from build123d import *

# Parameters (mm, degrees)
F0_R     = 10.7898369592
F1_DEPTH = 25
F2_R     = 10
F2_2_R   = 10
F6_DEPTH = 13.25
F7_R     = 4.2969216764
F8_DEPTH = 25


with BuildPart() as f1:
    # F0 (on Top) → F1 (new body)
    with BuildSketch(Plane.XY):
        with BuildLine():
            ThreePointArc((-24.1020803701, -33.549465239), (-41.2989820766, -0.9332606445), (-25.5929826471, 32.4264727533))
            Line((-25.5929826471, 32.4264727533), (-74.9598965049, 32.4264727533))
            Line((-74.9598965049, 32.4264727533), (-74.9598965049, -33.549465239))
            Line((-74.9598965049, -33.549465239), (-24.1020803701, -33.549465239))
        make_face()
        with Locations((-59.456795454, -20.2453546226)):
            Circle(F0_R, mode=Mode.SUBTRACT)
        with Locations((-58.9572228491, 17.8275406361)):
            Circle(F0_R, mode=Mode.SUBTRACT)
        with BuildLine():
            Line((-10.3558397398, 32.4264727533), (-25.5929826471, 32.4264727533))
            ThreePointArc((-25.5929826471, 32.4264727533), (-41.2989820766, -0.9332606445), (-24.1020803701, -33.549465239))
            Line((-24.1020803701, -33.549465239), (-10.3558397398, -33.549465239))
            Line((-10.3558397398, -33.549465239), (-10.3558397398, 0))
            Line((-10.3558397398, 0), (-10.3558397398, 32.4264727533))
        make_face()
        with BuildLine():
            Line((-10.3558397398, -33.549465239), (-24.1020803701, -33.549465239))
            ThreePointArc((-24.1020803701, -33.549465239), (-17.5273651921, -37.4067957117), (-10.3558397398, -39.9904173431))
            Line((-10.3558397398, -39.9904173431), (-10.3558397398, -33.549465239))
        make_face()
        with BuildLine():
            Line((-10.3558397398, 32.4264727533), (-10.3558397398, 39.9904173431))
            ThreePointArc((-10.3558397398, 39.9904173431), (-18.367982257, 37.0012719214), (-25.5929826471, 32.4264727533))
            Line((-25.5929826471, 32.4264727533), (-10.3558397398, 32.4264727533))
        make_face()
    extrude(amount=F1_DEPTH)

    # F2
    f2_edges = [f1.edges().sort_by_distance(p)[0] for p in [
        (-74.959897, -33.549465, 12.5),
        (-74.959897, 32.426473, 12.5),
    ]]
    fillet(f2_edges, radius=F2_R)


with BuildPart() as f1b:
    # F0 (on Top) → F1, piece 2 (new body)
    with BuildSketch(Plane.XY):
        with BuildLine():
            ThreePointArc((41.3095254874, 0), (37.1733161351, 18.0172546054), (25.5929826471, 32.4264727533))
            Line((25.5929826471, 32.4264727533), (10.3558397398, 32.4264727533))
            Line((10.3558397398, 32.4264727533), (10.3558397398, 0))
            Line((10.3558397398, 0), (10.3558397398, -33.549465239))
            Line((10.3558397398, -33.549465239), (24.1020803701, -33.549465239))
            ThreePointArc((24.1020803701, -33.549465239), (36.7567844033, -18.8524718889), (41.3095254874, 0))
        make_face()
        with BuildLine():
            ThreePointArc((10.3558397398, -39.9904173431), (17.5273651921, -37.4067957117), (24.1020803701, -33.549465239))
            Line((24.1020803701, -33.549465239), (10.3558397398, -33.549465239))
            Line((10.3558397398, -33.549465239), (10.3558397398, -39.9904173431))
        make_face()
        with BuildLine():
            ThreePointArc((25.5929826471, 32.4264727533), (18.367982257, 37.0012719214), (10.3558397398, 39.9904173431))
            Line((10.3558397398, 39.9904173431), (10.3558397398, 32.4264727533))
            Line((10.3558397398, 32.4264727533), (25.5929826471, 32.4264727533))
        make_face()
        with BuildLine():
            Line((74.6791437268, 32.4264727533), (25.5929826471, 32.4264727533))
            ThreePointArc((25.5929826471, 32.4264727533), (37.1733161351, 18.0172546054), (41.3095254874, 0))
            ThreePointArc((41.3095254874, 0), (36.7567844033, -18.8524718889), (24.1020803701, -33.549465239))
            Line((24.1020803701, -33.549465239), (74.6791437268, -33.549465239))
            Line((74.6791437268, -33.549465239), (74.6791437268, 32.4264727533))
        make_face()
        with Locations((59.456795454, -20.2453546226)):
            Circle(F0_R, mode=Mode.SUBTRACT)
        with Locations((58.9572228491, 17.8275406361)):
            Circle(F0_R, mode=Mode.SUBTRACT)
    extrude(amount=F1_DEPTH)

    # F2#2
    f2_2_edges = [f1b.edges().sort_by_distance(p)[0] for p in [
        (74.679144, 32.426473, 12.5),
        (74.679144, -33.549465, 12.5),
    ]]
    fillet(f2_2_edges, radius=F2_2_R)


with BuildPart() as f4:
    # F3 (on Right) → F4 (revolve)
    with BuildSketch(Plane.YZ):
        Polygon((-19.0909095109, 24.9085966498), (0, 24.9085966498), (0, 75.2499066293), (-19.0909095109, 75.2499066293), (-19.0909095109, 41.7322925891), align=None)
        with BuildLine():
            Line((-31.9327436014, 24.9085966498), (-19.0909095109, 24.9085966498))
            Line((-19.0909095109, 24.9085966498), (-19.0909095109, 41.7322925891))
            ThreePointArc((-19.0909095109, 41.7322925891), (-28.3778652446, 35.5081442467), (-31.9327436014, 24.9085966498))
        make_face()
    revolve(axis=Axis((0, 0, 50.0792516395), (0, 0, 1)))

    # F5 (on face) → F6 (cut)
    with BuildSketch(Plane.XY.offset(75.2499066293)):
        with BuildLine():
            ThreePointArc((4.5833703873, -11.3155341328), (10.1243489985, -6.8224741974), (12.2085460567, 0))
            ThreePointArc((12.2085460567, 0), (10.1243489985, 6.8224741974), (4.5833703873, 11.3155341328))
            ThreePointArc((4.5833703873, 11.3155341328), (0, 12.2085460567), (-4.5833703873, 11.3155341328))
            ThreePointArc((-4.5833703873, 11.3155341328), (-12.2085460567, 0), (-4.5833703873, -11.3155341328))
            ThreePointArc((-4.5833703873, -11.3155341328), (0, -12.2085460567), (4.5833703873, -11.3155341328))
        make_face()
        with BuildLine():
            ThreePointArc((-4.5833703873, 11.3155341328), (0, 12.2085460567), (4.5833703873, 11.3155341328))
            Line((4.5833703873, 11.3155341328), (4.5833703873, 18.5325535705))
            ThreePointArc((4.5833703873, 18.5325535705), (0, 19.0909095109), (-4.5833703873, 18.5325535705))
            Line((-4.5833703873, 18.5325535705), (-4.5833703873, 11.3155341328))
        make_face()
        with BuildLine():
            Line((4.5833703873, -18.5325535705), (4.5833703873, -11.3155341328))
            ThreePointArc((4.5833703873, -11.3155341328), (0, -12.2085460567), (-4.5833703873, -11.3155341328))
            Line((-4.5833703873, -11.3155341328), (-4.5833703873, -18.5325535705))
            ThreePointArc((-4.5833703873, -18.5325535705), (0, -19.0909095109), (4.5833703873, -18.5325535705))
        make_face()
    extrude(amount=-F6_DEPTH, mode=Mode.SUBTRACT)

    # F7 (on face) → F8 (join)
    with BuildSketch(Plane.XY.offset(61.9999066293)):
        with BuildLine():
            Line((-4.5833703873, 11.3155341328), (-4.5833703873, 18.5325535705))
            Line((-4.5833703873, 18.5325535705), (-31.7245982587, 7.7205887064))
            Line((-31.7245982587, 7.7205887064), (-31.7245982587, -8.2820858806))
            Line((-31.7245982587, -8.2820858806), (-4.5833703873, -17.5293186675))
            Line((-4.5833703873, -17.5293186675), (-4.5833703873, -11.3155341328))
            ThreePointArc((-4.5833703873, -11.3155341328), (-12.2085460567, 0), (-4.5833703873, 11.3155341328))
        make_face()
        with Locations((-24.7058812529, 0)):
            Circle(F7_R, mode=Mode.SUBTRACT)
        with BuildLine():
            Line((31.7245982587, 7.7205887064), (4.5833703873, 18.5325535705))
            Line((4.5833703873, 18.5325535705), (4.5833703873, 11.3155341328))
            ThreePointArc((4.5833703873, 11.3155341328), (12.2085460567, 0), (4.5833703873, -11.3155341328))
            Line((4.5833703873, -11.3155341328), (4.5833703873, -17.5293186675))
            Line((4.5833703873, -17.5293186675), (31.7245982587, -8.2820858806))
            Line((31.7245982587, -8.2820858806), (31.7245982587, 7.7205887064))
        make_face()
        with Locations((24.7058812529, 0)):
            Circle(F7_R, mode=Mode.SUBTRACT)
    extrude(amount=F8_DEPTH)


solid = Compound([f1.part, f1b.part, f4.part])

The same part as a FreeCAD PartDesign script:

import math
import FreeCAD as App
import Part
import Sketcher

V = App.Vector
Q = App.Units.Quantity


def edges_at(feature, points):
    """Names of the edges that pass closest to the given points."""
    edges = feature.Shape.Edges
    near = lambda p: min(range(len(edges)), key=lambda i: edges[i].distToShape(Part.Vertex(*p))[0])
    return sorted({f"Edge{near(p) + 1}" for p in points})

doc = App.newDocument("Part")
body = doc.addObject("PartDesign::Body", "Body")

sketch1 = body.newObject("Sketcher::SketchObject", "Sketch")
sketch1.AttachmentSupport = (doc.getObject("XY_Plane"), [""])
sketch1.MapMode = "FlatFace"
sketch1.addGeometry(Part.LineSegment(V(-75, -34, 0), V(-24, -34, 0)), False)
sketch1.addGeometry(Part.ArcOfCircle(Part.Circle(V(0, 0, 0), V(0, 0, 1), 41), math.radians(-126), math.radians(-105)), False)
sketch1.addGeometry(Part.LineSegment(V(-10, -40, 0), V(-10, 40, 0)), False)
sketch1.addGeometry(Part.ArcOfCircle(Part.Circle(V(0, 0, 0), V(0, 0, 1), 41), math.radians(105), math.radians(128)), False)
sketch1.addGeometry(Part.LineSegment(V(-26, 32, 0), V(-75, 32, 0)), False)
sketch1.addGeometry(Part.LineSegment(V(-75, 32, 0), V(-75, -34, 0)), False)
sketch1.addGeometry(Part.Circle(V(-59, -20, 0), V(0, 0, 1), 11), False)
sketch1.addGeometry(Part.Circle(V(-59, 18, 0), V(0, 0, 1), 11), False)
sketch1.addConstraint(Sketcher.Constraint("Coincident", 0, 2, 1, 1))
sketch1.addConstraint(Sketcher.Constraint("Coincident", 1, 2, 2, 1))
sketch1.addConstraint(Sketcher.Constraint("Coincident", 2, 2, 3, 1))
sketch1.addConstraint(Sketcher.Constraint("Coincident", 3, 2, 4, 1))
sketch1.addConstraint(Sketcher.Constraint("Coincident", 4, 2, 5, 1))
sketch1.addConstraint(Sketcher.Constraint("Coincident", 5, 2, 0, 1))
sketch1.addConstraint(Sketcher.Constraint("Horizontal", 0))
sketch1.addConstraint(Sketcher.Constraint("Vertical", 2))
sketch1.addConstraint(Sketcher.Constraint("Horizontal", 4))
sketch1.addConstraint(Sketcher.Constraint("Vertical", 5))
sketch1.addConstraint(Sketcher.Constraint("Coincident", 1, 3, -1, 1))
sketch1.addConstraint(Sketcher.Constraint("Coincident", 3, 3, -1, 1))
sketch1.addConstraint(Sketcher.Constraint("Equal", 1, 3))
sketch1.addConstraint(Sketcher.Constraint("Equal", 6, 7))
sketch1.addConstraint(Sketcher.Constraint("Diameter", 6, Q("21.579674 mm")))
sketch1.addConstraint(Sketcher.Constraint("Radius", 1, Q("41.309525 mm")))
sketch1.addConstraint(Sketcher.Constraint("DistanceX", 4, 2, 6, 3, Q("15.503101 mm")))
sketch1.addConstraint(Sketcher.Constraint("DistanceX", 0, 1, 0, 2, Q("50.857816 mm")))
sketch1.addConstraint(Sketcher.Constraint("DistanceX", 4, 2, 4, 1, Q("49.366914 mm")))
sketch1.addConstraint(Sketcher.Constraint("DistanceY", 2, 1, 2, 2, Q("79.980835 mm")))
sketch1.addConstraint(Sketcher.Constraint("DistanceY", 5, 2, 5, 1, Q("65.975938 mm")))
sketch1.addConstraint(Sketcher.Constraint("DistanceY", -1, 1, 7, 3, Q("17.827541 mm")))
sketch1.addConstraint(Sketcher.Constraint("DistanceY", 0, 2, 6, 3, Q("13.304111 mm")))
sketch1.addConstraint(Sketcher.Constraint("DistanceX", 7, 3, 3, 2, Q("33.36424 mm")))
pad1 = body.newObject("PartDesign::Pad", "Pad")
pad1.Profile = sketch1
pad1.Length = 25
doc.recompute()

fillet = body.newObject("PartDesign::Fillet", "Fillet")
fillet.Base = (pad1, edges_at(pad1, [(-74.96, -33.549, 12.5), (-74.96, 32.426, 12.5)]))
fillet.Radius = 10
body2 = doc.addObject("PartDesign::Body", "Body001")

sketch2 = body2.newObject("Sketcher::SketchObject", "Sketch001")
sketch2.AttachmentSupport = (doc.getObject("XY_Plane001"), [""])
sketch2.MapMode = "FlatFace"
sketch2.addGeometry(Part.ArcOfCircle(Part.Circle(V(0, 0, 0), V(0, 0, 1), 41), math.radians(52), math.radians(75)), False)
sketch2.addGeometry(Part.LineSegment(V(10, 40, 0), V(10, -40, 0)), False)
sketch2.addGeometry(Part.ArcOfCircle(Part.Circle(V(0, 0, 0), V(0, 0, 1), 41), math.radians(-75), math.radians(-54)), False)
sketch2.addGeometry(Part.LineSegment(V(24, -34, 0), V(75, -34, 0)), False)
sketch2.addGeometry(Part.LineSegment(V(75, -34, 0), V(75, 32, 0)), False)
sketch2.addGeometry(Part.LineSegment(V(75, 32, 0), V(26, 32, 0)), False)
sketch2.addGeometry(Part.Circle(V(59, -20, 0), V(0, 0, 1), 11), False)
sketch2.addGeometry(Part.Circle(V(59, 18, 0), V(0, 0, 1), 11), False)
sketch2.addConstraint(Sketcher.Constraint("Coincident", 0, 2, 1, 1))
sketch2.addConstraint(Sketcher.Constraint("Coincident", 1, 2, 2, 1))
sketch2.addConstraint(Sketcher.Constraint("Coincident", 2, 2, 3, 1))
sketch2.addConstraint(Sketcher.Constraint("Coincident", 3, 2, 4, 1))
sketch2.addConstraint(Sketcher.Constraint("Coincident", 4, 2, 5, 1))
sketch2.addConstraint(Sketcher.Constraint("Coincident", 5, 2, 0, 1))
sketch2.addConstraint(Sketcher.Constraint("Vertical", 1))
sketch2.addConstraint(Sketcher.Constraint("Horizontal", 3))
sketch2.addConstraint(Sketcher.Constraint("Vertical", 4))
sketch2.addConstraint(Sketcher.Constraint("Horizontal", 5))
sketch2.addConstraint(Sketcher.Constraint("Coincident", 0, 3, -1, 1))
sketch2.addConstraint(Sketcher.Constraint("Coincident", 2, 3, -1, 1))
sketch2.addConstraint(Sketcher.Constraint("Equal", 0, 2))
sketch2.addConstraint(Sketcher.Constraint("Equal", 6, 7))
sketch2.addConstraint(Sketcher.Constraint("Diameter", 6, Q("21.579674 mm")))
sketch2.addConstraint(Sketcher.Constraint("Radius", 0, Q("41.309525 mm")))
sketch2.addConstraint(Sketcher.Constraint("DistanceX", 5, 2, 5, 1, Q("49.086161 mm")))
sketch2.addConstraint(Sketcher.Constraint("DistanceX", 3, 1, 3, 2, Q("50.577063 mm")))
sketch2.addConstraint(Sketcher.Constraint("DistanceY", 1, 2, 1, 1, Q("79.980835 mm")))
sketch2.addConstraint(Sketcher.Constraint("DistanceY", 4, 1, 4, 2, Q("65.975938 mm")))
sketch2.addConstraint(Sketcher.Constraint("DistanceY", -1, 1, 7, 3, Q("17.827541 mm")))
sketch2.addConstraint(Sketcher.Constraint("DistanceY", 6, 3, 0, 2, Q("60.235772 mm")))
sketch2.addConstraint(Sketcher.Constraint("DistanceX", 6, 3, 3, 2, Q("15.222348 mm")))
sketch2.addConstraint(Sketcher.Constraint("DistanceX", 7, 3, 3, 2, Q("15.721921 mm")))
pad2 = body2.newObject("PartDesign::Pad", "Pad001")
pad2.Profile = sketch2
pad2.Length = 25
doc.recompute()

fillet2 = body2.newObject("PartDesign::Fillet", "Fillet001")
fillet2.Base = (pad2, edges_at(pad2, [(74.679, 32.426, 12.5), (74.679, -33.549, 12.5)]))
fillet2.Radius = 10
body3 = doc.addObject("PartDesign::Body", "Body002")

sketch3 = body3.newObject("Sketcher::SketchObject", "Sketch002")
sketch3.AttachmentSupport = (doc.getObject("YZ_Plane002"), [""])
sketch3.MapMode = "FlatFace"
sketch3.addGeometry(Part.LineSegment(V(0, 25, 0), V(0, 75, 0)), False)
sketch3.addGeometry(Part.LineSegment(V(0, 75, 0), V(-19, 75, 0)), False)
sketch3.addGeometry(Part.LineSegment(V(-19, 75, 0), V(-19, 42, 0)), False)
sketch3.addGeometry(Part.ArcOfCircle(Part.Circle(V(-15, 25, 0), V(0, 0, 1), 17), math.radians(105), math.radians(180)), False)
sketch3.addGeometry(Part.LineSegment(V(-32, 25, 0), V(0, 25, 0)), False)
sketch3.addConstraint(Sketcher.Constraint("Coincident", 0, 2, 1, 1))
sketch3.addConstraint(Sketcher.Constraint("Coincident", 1, 2, 2, 1))
sketch3.addConstraint(Sketcher.Constraint("Coincident", 2, 2, 3, 1))
sketch3.addConstraint(Sketcher.Constraint("Coincident", 3, 2, 4, 1))
sketch3.addConstraint(Sketcher.Constraint("Coincident", 4, 2, 0, 1))
sketch3.addConstraint(Sketcher.Constraint("Vertical", 0))
sketch3.addConstraint(Sketcher.Constraint("Horizontal", 1))
sketch3.addConstraint(Sketcher.Constraint("Vertical", 2))
sketch3.addConstraint(Sketcher.Constraint("Horizontal", 4))
sketch3.addConstraint(Sketcher.Constraint("PointOnObject", 0, 2, -2))
sketch3.addConstraint(Sketcher.Constraint("Radius", 3, Q("17.332519 mm")))
sketch3.addConstraint(Sketcher.Constraint("DistanceX", 1, 2, 1, 1, Q("19.09091 mm")))
sketch3.addConstraint(Sketcher.Constraint("DistanceY", 0, 1, 0, 2, Q("50.34131 mm")))
sketch3.addConstraint(Sketcher.Constraint("DistanceX", 4, 1, 4, 2, Q("31.932744 mm")))
sketch3.addConstraint(Sketcher.Constraint("DistanceY", 2, 2, 2, 1, Q("33.517614 mm")))
sketch3.addConstraint(Sketcher.Constraint("DistanceY", -1, 1, 3, 3, Q("24.991571 mm")))
revolution = body3.newObject("PartDesign::Revolution", "Revolution")
revolution.Profile = sketch3
revolution.ReferenceAxis = (sketch3, ["V_Axis"])
revolution.Angle = 360

sketch4 = body3.newObject("Sketcher::SketchObject", "Sketch003")
sketch4.AttachmentSupport = (doc.getObject("XY_Plane002"), [""])
sketch4.MapMode = "FlatFace"
sketch4.AttachmentOffset = App.Placement(V(0, 0, 75.249907), App.Rotation())
sketch4.addGeometry(Part.ArcOfCircle(Part.Circle(V(0, 0, 0), V(0, 0, 1), 12), math.radians(-68), math.radians(0)), False)
sketch4.addGeometry(Part.ArcOfCircle(Part.Circle(V(0, 0, 0), V(0, 0, 1), 12), math.radians(0), math.radians(68)), False)
sketch4.addGeometry(Part.LineSegment(V(5, 11, 0), V(5, 19, 0)), False)
sketch4.addGeometry(Part.ArcOfCircle(Part.Circle(V(0, 0, 0), V(0, 0, 1), 19), math.radians(76), math.radians(104)), False)
sketch4.addGeometry(Part.LineSegment(V(-5, 19, 0), V(-5, 11, 0)), False)
sketch4.addGeometry(Part.ArcOfCircle(Part.Circle(V(0, 0, 0), V(0, 0, 1), 12), math.radians(112), math.radians(248)), False)
sketch4.addGeometry(Part.LineSegment(V(-5, -11, 0), V(-5, -19, 0)), False)
sketch4.addGeometry(Part.ArcOfCircle(Part.Circle(V(0, 0, 0), V(0, 0, 1), 19), math.radians(-104), math.radians(-76)), False)
sketch4.addGeometry(Part.LineSegment(V(5, -19, 0), V(5, -11, 0)), False)
sketch4.addConstraint(Sketcher.Constraint("Tangent", 0, 2, 1, 1))
sketch4.addConstraint(Sketcher.Constraint("Coincident", 1, 2, 2, 1))
sketch4.addConstraint(Sketcher.Constraint("Coincident", 2, 2, 3, 1))
sketch4.addConstraint(Sketcher.Constraint("Coincident", 3, 2, 4, 1))
sketch4.addConstraint(Sketcher.Constraint("Coincident", 4, 2, 5, 1))
sketch4.addConstraint(Sketcher.Constraint("Coincident", 5, 2, 6, 1))
sketch4.addConstraint(Sketcher.Constraint("Coincident", 6, 2, 7, 1))
sketch4.addConstraint(Sketcher.Constraint("Coincident", 7, 2, 8, 1))
sketch4.addConstraint(Sketcher.Constraint("Coincident", 8, 2, 0, 1))
sketch4.addConstraint(Sketcher.Constraint("Vertical", 2))
sketch4.addConstraint(Sketcher.Constraint("Vertical", 4))
sketch4.addConstraint(Sketcher.Constraint("Vertical", 6))
sketch4.addConstraint(Sketcher.Constraint("Vertical", 8))
sketch4.addConstraint(Sketcher.Constraint("Coincident", 0, 3, -1, 1))
sketch4.addConstraint(Sketcher.Constraint("Coincident", 3, 3, -1, 1))
sketch4.addConstraint(Sketcher.Constraint("Coincident", 5, 3, -1, 1))
sketch4.addConstraint(Sketcher.Constraint("Coincident", 7, 3, -1, 1))
sketch4.addConstraint(Sketcher.Constraint("Equal", 0, 1))
sketch4.addConstraint(Sketcher.Constraint("Equal", 1, 5))
sketch4.addConstraint(Sketcher.Constraint("Equal", 3, 7))
sketch4.addConstraint(Sketcher.Constraint("PointOnObject", 0, 2, -1))
sketch4.addConstraint(Sketcher.Constraint("Horizontal", 2, 2, 3, 2))
sketch4.addConstraint(Sketcher.Constraint("Horizontal", 6, 2, 7, 2))
sketch4.addConstraint(Sketcher.Constraint("Vertical", 4, 2, 5, 2))
sketch4.addConstraint(Sketcher.Constraint("Radius", 3, Q("19.09091 mm")))
sketch4.addConstraint(Sketcher.Constraint("Radius", 0, Q("12.208546 mm")))
sketch4.addConstraint(Sketcher.Constraint("DistanceY", 2, 1, 2, 2, Q("7.217019 mm")))
pocket1 = body3.newObject("PartDesign::Pocket", "Pocket")
pocket1.Profile = sketch4
pocket1.Length = 13.25

sketch5 = body3.newObject("Sketcher::SketchObject", "Sketch004")
sketch5.AttachmentSupport = (doc.getObject("XY_Plane002"), [""])
sketch5.MapMode = "FlatFace"
sketch5.AttachmentOffset = App.Placement(V(0, 0, 61.999907), App.Rotation())
sketch5.addGeometry(Part.LineSegment(V(-4.6, 11.3, 0), V(-4.6, 18.5, 0)), False)
sketch5.addGeometry(Part.LineSegment(V(-4.6, 18.5, 0), V(-31.7, 7.7, 0)), False)
sketch5.addGeometry(Part.LineSegment(V(-31.7, 7.7, 0), V(-31.7, -8.3, 0)), False)
sketch5.addGeometry(Part.LineSegment(V(-31.7, -8.3, 0), V(-4.6, -17.5, 0)), False)
sketch5.addGeometry(Part.LineSegment(V(-4.6, -17.5, 0), V(-4.6, -11.3, 0)), False)
sketch5.addGeometry(Part.ArcOfCircle(Part.Circle(V(0, 0, 0), V(0, 0, 1), 12.2), math.radians(112), math.radians(248)), False)
sketch5.addGeometry(Part.Circle(V(-24.7, 0, 0), V(0, 0, 1), 4.3), False)
sketch5.addGeometry(Part.LineSegment(V(31.7, 7.7, 0), V(4.6, 18.5, 0)), False)
sketch5.addGeometry(Part.LineSegment(V(4.6, 18.5, 0), V(4.6, 11.3, 0)), False)
sketch5.addGeometry(Part.ArcOfCircle(Part.Circle(V(0, 0, 0), V(0, 0, 1), 12.2), math.radians(-68), math.radians(68)), False)
sketch5.addGeometry(Part.LineSegment(V(4.6, -11.3, 0), V(4.6, -17.5, 0)), False)
sketch5.addGeometry(Part.LineSegment(V(4.6, -17.5, 0), V(31.7, -8.3, 0)), False)
sketch5.addGeometry(Part.LineSegment(V(31.7, -8.3, 0), V(31.7, 7.7, 0)), False)
sketch5.addGeometry(Part.Circle(V(24.7, 0, 0), V(0, 0, 1), 4.3), False)
sketch5.addConstraint(Sketcher.Constraint("Coincident", 0, 2, 1, 1))
sketch5.addConstraint(Sketcher.Constraint("Coincident", 1, 2, 2, 1))
sketch5.addConstraint(Sketcher.Constraint("Coincident", 2, 2, 3, 1))
sketch5.addConstraint(Sketcher.Constraint("Coincident", 3, 2, 4, 1))
sketch5.addConstraint(Sketcher.Constraint("Coincident", 4, 2, 5, 2))
sketch5.addConstraint(Sketcher.Constraint("Coincident", 5, 1, 0, 1))
sketch5.addConstraint(Sketcher.Constraint("Coincident", 7, 2, 8, 1))
sketch5.addConstraint(Sketcher.Constraint("Coincident", 8, 2, 9, 2))
sketch5.addConstraint(Sketcher.Constraint("Coincident", 9, 1, 10, 1))
sketch5.addConstraint(Sketcher.Constraint("Coincident", 10, 2, 11, 1))
sketch5.addConstraint(Sketcher.Constraint("Coincident", 11, 2, 12, 1))
sketch5.addConstraint(Sketcher.Constraint("Coincident", 12, 2, 7, 1))
sketch5.addConstraint(Sketcher.Constraint("Vertical", 0))
sketch5.addConstraint(Sketcher.Constraint("Vertical", 2))
sketch5.addConstraint(Sketcher.Constraint("Vertical", 4))
sketch5.addConstraint(Sketcher.Constraint("Vertical", 8))
sketch5.addConstraint(Sketcher.Constraint("Vertical", 10))
sketch5.addConstraint(Sketcher.Constraint("Vertical", 12))
sketch5.addConstraint(Sketcher.Constraint("Coincident", 5, 3, -1, 1))
sketch5.addConstraint(Sketcher.Constraint("Coincident", 9, 3, -1, 1))
sketch5.addConstraint(Sketcher.Constraint("Equal", 5, 9))
sketch5.addConstraint(Sketcher.Constraint("Equal", 6, 13))
sketch5.addConstraint(Sketcher.Constraint("Symmetric", 6, 3, 13, 3, -1, 1))
sketch5.addConstraint(Sketcher.Constraint("Symmetric", 0, 2, 7, 2, -2))
sketch5.addConstraint(Sketcher.Constraint("Symmetric", 3, 2, 10, 2, -2))
sketch5.addConstraint(Sketcher.Constraint("Symmetric", 2, 2, 11, 2, -2))
sketch5.addConstraint(Sketcher.Constraint("PointOnObject", 6, 3, -1))
sketch5.addConstraint(Sketcher.Constraint("Horizontal", 1, 2, 12, 2))
sketch5.addConstraint(Sketcher.Constraint("Vertical", 0, 2, 3, 2))
sketch5.addConstraint(Sketcher.Constraint("Diameter", 6, Q("8.593843 mm")))
sketch5.addConstraint(Sketcher.Constraint("Radius", 5, Q("12.208546 mm")))
sketch5.addConstraint(Sketcher.Constraint("DistanceY", 0, 1, 0, 2, Q("7.217019 mm")))
sketch5.addConstraint(Sketcher.Constraint("DistanceX", 1, 2, -1, 1, Q("31.724598 mm")))
sketch5.addConstraint(Sketcher.Constraint("Distance", 1, Q("29.21549 mm")))
sketch5.addConstraint(Sketcher.Constraint("Distance", 3, Q("28.67329 mm")))
sketch5.addConstraint(Sketcher.Constraint("DistanceY", 2, 2, 2, 1, Q("16.002675 mm")))
sketch5.addConstraint(Sketcher.Constraint("DistanceY", 4, 1, 4, 2, Q("6.213785 mm")))
sketch5.addConstraint(Sketcher.Constraint("DistanceX", 6, 3, -1, 1, Q("24.705881 mm")))
pad3 = body3.newObject("PartDesign::Pad", "Pad002")
pad3.Profile = sketch5
pad3.Length = 25

doc.recompute()
